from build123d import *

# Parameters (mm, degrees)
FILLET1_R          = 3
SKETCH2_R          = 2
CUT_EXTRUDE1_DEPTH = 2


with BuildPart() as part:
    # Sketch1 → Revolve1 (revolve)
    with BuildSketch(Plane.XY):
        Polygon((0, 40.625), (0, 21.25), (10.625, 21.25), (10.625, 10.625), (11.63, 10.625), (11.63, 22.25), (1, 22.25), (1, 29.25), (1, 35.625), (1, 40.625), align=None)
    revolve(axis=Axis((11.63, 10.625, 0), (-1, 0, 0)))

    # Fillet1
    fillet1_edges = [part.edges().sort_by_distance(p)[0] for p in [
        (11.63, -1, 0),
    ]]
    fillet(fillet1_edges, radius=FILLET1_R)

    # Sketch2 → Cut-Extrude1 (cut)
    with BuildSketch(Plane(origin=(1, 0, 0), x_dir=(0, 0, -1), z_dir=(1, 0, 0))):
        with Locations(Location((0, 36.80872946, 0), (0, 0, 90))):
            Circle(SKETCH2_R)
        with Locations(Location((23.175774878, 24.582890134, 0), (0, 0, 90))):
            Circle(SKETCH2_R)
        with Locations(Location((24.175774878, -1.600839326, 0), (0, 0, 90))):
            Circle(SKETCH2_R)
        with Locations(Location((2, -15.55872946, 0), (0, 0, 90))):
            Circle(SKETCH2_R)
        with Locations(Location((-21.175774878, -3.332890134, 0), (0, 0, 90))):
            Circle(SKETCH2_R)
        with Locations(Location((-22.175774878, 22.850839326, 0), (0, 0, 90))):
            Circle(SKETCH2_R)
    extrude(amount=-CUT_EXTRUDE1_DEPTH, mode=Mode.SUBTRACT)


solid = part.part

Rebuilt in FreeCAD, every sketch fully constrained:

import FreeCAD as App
import Part
import Sketcher
Q = App.Units.Quantity


def edges_at(feature, points):
    """Names of the edges that pass closest to the given points."""
    edges = feature.Shape.Edges
    near = lambda p: min(range(len(edges)), key=lambda i: edges[i].distToShape(Part.Vertex(*p))[0])
    return sorted({f"Edge{near(p) + 1}" for p in points})

doc = App.newDocument("Part")
body = doc.addObject("PartDesign::Body", "Body")

sketch1 = doc.addObject("Sketcher::SketchObject", "Sketch")
body.addObject(sketch1)
sketch1.AttachmentSupport = (doc.XY_Plane, [""])
sketch1.MapMode = "FlatFace"
sketch1.addGeometry([
    Part.LineSegment(App.Vector(0, 40.6, 0), App.Vector(0, 21.2, 0)),
    Part.LineSegment(App.Vector(0, 21.2, 0), App.Vector(10.6, 21.2, 0)),
    Part.LineSegment(App.Vector(10.6, 21.2, 0), App.Vector(10.6, 10.6, 0)),
    Part.LineSegment(App.Vector(10.6, 10.6, 0), App.Vector(11.6, 10.6, 0)),
    Part.LineSegment(App.Vector(11.6, 10.6, 0), App.Vector(11.6, 22.2, 0)),
    Part.LineSegment(App.Vector(11.6, 22.2, 0), App.Vector(1, 22.2, 0)),
    Part.LineSegment(App.Vector(1, 22.2, 0), App.Vector(1, 40.6, 0)),
    Part.LineSegment(App.Vector(1, 40.6, 0), App.Vector(0, 40.6, 0)),
], False)
sketch1.addGeometry(Part.LineSegment(App.Vector(11.6, 10.6, 0), App.Vector(0, 10.6, 0)), True)
sketch1.addConstraint([
    Sketcher.Constraint("Coincident", 0, 2, 1, 1),
    Sketcher.Constraint("Coincident", 1, 2, 2, 1),
    Sketcher.Constraint("Coincident", 2, 2, 3, 1),
    Sketcher.Constraint("Coincident", 3, 2, 4, 1),
    Sketcher.Constraint("Coincident", 4, 2, 5, 1),
    Sketcher.Constraint("Coincident", 5, 2, 6, 1),
    Sketcher.Constraint("Coincident", 6, 2, 7, 1),
    Sketcher.Constraint("Coincident", 7, 2, 0, 1),
    Sketcher.Constraint("Vertical", 0),
    Sketcher.Constraint("Horizontal", 1),
    Sketcher.Constraint("Vertical", 2),
    Sketcher.Constraint("Horizontal", 3),
    Sketcher.Constraint("Vertical", 4),
    Sketcher.Constraint("Horizontal", 5),
    Sketcher.Constraint("Vertical", 6),
    Sketcher.Constraint("Horizontal", 7),
    Sketcher.Constraint("Horizontal", 8),
    Sketcher.Constraint("Coincident", 8, 1, 3, 2),
    Sketcher.Constraint("PointOnObject", 0, 2, -2),
    Sketcher.Constraint("PointOnObject", 8, 2, -2),
    Sketcher.Constraint("Equal", 1, 2),
    Sketcher.Constraint("DistanceX", 7, 2, 7, 1, Q("1 mm")),
    Sketcher.Constraint("DistanceY", 1, 2, 4, 2, Q("1 mm")),
    Sketcher.Constraint("DistanceY", 2, 2, 6, 2, Q("30 mm")),
    Sketcher.Constraint("DistanceX", 5, 2, 5, 1, Q("10.63 mm")),
    Sketcher.Constraint("DistanceX", 1, 1, 1, 2, Q("10.625 mm")),
    Sketcher.Constraint("DistanceY", -1, 1, 0, 2, Q("21.25 mm")),
])
revolution = doc.addObject("PartDesign::Revolution", "Revolution")
body.addObject(revolution)
revolution.Profile = sketch1
revolution.ReferenceAxis = (sketch1, ["Axis0"])
revolution.Angle = 360
doc.recompute()

fillet = doc.addObject("PartDesign::Fillet", "Fillet")
body.addObject(fillet)
fillet.Base = (revolution, edges_at(revolution, [(11.63, -1, 0)]))
fillet.Radius = 3

sketch2 = doc.addObject("Sketcher::SketchObject", "Sketch001")
body.addObject(sketch2)
sketch2.AttachmentSupport = (doc.YZ_Plane, [""])
sketch2.MapMode = "FlatFace"
sketch2.AttachmentOffset = App.Placement(App.Vector(0, 0, 1), App.Rotation())
sketch2.addGeometry([
    Part.Circle(App.Vector(36.8, 0, 0), App.Vector(0, 0, 1), 2),
    Part.Circle(App.Vector(24.6, -23.2, 0), App.Vector(0, 0, 1), 2),
    Part.Circle(App.Vector(-1.6, -24.2, 0), App.Vector(0, 0, 1), 2),
    Part.Circle(App.Vector(-15.6, -2, 0), App.Vector(0, 0, 1), 2),
    Part.Circle(App.Vector(-3.3, 21.2, 0), App.Vector(0, 0, 1), 2),
    Part.Circle(App.Vector(22.9, 22.2, 0), App.Vector(0, 0, 1), 2),
], False)
sketch2.addConstraint([
    Sketcher.Constraint("Equal", 0, 1),
    Sketcher.Constraint("Equal", 1, 2),
    Sketcher.Constraint("Equal", 2, 3),
    Sketcher.Constraint("Equal", 3, 4),
    Sketcher.Constraint("Equal", 4, 5),
    Sketcher.Constraint("PointOnObject", 0, 3, -1),
    Sketcher.Constraint("Diameter", 0, Q("4 mm")),
    Sketcher.Constraint("DistanceY", 3, 3, -1, 1, Q("2 mm")),
    Sketcher.Constraint("DistanceY", 2, 3, 1, 3, Q("1 mm")),
    Sketcher.Constraint("DistanceY", 4, 3, 5, 3, Q("1 mm")),
    Sketcher.Constraint("DistanceX", -1, 1, 0, 3, Q("36.808729 mm")),
    Sketcher.Constraint("DistanceX", -1, 1, 1, 3, Q("24.58289 mm")),
    Sketcher.Constraint("DistanceX", 2, 3, -1, 1, Q("1.600839 mm")),
    Sketcher.Constraint("DistanceX", 3, 3, -1, 1, Q("15.558729 mm")),
    Sketcher.Constraint("DistanceX", 4, 3, -1, 1, Q("3.33289 mm")),
    Sketcher.Constraint("DistanceX", -1, 1, 5, 3, Q("22.850839 mm")),
    Sketcher.Constraint("DistanceY", 2, 3, 4, 3, Q("45.35155 mm")),
    Sketcher.Constraint("DistanceY", 1, 3, -1, 1, Q("23.175775 mm")),
])
pocket1 = doc.addObject("PartDesign::Pocket", "Pocket")
body.addObject(pocket1)
pocket1.Profile = sketch2
pocket1.Length = 2

doc.recompute()
